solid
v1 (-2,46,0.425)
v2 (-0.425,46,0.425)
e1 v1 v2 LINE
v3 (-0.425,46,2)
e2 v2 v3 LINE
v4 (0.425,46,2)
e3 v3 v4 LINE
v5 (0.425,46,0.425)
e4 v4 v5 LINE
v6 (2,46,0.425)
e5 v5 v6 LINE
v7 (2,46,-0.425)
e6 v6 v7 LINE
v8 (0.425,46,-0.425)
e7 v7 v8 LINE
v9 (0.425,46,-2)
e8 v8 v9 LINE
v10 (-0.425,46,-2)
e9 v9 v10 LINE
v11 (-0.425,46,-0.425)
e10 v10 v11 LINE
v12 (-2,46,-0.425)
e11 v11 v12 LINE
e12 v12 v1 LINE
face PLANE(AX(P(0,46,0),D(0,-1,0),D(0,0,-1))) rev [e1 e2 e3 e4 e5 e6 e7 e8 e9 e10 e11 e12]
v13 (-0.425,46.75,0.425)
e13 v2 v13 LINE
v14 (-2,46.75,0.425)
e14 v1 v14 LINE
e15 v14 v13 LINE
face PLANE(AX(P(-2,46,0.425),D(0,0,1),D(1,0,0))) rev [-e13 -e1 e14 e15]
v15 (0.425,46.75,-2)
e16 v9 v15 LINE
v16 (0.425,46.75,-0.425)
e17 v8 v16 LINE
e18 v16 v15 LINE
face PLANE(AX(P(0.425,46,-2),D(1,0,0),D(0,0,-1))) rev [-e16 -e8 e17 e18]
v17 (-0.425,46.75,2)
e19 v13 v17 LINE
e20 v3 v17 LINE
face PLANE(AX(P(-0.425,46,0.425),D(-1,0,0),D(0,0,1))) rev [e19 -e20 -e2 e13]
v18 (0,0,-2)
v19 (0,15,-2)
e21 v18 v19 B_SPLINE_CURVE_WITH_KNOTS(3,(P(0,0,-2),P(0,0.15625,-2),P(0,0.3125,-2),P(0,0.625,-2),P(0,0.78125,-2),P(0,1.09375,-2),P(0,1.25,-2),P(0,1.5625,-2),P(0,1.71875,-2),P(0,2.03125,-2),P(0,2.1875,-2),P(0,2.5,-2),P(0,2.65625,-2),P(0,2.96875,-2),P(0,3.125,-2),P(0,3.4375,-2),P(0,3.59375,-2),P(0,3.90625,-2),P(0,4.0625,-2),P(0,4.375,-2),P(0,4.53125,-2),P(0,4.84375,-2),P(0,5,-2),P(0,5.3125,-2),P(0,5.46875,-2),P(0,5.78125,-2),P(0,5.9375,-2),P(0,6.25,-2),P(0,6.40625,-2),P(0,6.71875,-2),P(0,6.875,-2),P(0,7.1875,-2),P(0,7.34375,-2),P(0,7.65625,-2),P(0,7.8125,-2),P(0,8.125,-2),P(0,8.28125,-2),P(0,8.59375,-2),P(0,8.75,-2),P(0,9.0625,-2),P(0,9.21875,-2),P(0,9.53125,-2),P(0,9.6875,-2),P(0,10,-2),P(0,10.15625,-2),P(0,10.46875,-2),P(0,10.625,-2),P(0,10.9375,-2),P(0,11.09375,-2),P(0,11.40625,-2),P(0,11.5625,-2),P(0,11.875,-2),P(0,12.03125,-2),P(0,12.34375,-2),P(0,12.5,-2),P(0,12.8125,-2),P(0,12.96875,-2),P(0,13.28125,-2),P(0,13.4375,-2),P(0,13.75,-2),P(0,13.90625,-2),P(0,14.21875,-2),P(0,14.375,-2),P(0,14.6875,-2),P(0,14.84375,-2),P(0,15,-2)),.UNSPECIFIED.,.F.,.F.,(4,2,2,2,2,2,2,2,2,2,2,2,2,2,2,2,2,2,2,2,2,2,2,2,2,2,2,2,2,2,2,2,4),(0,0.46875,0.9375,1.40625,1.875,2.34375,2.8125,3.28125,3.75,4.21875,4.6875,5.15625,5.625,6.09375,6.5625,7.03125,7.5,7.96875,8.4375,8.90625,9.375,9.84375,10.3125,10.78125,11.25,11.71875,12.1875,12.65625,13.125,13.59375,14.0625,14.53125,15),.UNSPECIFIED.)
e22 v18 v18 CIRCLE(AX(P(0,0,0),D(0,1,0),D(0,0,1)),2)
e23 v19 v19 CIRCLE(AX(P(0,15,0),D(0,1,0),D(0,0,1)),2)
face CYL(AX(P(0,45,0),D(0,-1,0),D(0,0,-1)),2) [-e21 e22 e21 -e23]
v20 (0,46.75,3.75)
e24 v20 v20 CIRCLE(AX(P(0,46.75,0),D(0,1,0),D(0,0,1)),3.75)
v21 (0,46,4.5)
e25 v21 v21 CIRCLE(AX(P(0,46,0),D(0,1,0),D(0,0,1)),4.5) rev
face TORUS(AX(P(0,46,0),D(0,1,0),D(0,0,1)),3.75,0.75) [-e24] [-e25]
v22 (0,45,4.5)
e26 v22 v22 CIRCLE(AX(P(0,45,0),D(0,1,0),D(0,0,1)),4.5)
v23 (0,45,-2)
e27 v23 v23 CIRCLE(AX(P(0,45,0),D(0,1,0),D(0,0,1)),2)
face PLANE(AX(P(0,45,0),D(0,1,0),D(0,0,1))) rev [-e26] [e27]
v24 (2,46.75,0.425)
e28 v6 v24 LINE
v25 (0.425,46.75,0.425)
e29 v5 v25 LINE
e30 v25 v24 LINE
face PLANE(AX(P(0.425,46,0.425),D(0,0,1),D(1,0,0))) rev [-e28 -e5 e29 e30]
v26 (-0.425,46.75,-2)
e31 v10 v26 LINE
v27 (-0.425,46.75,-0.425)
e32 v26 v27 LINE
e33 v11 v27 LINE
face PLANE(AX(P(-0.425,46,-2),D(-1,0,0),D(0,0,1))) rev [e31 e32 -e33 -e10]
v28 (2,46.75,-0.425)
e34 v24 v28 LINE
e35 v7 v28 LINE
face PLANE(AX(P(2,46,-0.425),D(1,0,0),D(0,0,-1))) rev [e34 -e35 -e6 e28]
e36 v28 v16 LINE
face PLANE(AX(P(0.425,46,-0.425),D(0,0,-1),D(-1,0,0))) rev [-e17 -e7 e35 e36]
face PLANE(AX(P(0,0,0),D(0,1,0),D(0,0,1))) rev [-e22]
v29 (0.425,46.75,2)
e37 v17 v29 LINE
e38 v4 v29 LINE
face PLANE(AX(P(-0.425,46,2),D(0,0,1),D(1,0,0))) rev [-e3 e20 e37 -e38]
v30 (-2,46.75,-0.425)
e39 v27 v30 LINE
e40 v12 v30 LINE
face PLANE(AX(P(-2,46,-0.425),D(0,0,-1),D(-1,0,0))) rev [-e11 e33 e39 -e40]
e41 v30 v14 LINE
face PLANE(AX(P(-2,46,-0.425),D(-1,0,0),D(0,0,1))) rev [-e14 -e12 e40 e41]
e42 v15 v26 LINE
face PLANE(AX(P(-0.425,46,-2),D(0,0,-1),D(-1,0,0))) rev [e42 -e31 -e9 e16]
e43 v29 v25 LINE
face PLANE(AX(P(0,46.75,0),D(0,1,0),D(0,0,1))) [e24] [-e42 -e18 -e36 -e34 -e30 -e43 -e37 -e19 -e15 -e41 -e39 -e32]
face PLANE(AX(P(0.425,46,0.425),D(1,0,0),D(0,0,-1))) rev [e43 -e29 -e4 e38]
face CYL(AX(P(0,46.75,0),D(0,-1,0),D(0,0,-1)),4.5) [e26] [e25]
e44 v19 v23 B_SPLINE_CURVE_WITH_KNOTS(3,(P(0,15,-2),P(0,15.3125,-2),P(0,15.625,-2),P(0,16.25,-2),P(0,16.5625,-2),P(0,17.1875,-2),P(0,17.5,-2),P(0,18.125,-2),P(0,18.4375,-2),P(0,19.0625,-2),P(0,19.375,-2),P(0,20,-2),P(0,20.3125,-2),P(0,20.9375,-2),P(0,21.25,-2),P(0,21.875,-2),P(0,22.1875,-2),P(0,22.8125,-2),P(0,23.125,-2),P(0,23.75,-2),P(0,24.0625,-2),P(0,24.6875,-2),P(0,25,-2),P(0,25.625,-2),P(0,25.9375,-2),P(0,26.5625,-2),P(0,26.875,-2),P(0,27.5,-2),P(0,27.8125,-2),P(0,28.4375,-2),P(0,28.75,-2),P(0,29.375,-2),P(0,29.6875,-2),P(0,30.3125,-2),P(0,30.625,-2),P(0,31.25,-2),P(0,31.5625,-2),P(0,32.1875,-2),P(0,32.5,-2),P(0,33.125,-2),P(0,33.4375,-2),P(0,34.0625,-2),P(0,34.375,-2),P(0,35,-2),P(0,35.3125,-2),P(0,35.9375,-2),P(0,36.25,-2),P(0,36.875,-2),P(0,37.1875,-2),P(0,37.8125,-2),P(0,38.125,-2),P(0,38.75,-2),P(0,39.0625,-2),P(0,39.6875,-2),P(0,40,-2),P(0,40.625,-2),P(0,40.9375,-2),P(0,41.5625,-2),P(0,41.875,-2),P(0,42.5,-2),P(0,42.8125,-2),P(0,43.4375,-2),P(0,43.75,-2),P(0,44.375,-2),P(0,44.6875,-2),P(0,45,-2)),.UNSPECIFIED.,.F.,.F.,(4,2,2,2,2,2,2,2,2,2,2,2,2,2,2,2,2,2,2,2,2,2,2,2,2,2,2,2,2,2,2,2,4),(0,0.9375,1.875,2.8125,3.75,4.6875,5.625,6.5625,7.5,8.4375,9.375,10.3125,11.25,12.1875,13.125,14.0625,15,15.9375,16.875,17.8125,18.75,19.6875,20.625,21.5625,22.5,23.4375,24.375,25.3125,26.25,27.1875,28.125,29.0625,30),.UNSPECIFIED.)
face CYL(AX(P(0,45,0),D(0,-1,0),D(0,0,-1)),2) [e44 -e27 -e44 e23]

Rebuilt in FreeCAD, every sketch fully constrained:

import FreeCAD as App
import Part
import Sketcher
Q = App.Units.Quantity


def edges_at(feature, points):
    """Names of the edges that pass closest to the given points."""
    edges = feature.Shape.Edges
    near = lambda p: min(range(len(edges)), key=lambda i: edges[i].distToShape(Part.Vertex(*p))[0])
    return sorted({f"Edge{near(p) + 1}" for p in points})


def add_polygon(sketch, points):
    """Adds a closed chain of lines whose ends are joined by coincident constraints."""
    first, n = sketch.GeometryCount, len(points)
    for a, b in zip(points, points[1:] + points[:1]):
        sketch.addGeometry(Part.LineSegment(App.Vector(*a, 0), App.Vector(*b, 0)), False)
    for i in range(n):
        sketch.addConstraint(Sketcher.Constraint("Coincident", first + i, 2, first + (i + 1) % n, 1))

doc = App.newDocument("Part")
body = doc.addObject("PartDesign::Body", "Body")

# Sketch on XZ plane
sketch1 = body.newObject("Sketcher::SketchObject", "Sketch")
sketch1.AttachmentSupport = (doc.getObject("XZ_Plane"), [""])
sketch1.MapMode = "FlatFace"
sketch1.addGeometry(Part.Circle(App.Vector(0, 0, 0), App.Vector(0, 0, 1), 2), False)
sketch1.addConstraint([
    Sketcher.Constraint("Coincident", 0, 3, -1, 1),
    Sketcher.Constraint("Diameter", 0, Q("4 mm")),
])
pad1 = body.newObject("PartDesign::Pad", "Pad")
pad1.Profile = sketch1
pad1.Length = 45
pad1.Reversed = True

# Sketch on XZ plane
sketch2 = body.newObject("Sketcher::SketchObject", "Sketch001")
sketch2.AttachmentSupport = (doc.getObject("XZ_Plane"), [""])
sketch2.MapMode = "FlatFace"
sketch2.AttachmentOffset = App.Placement(App.Vector(0, 0, -45), App.Rotation())
sketch2.addGeometry(Part.Circle(App.Vector(0, 0, 0), App.Vector(0, 0, 1), 4.5), False)
sketch2.addConstraint([
    Sketcher.Constraint("Coincident", 0, 3, -1, 1),
    Sketcher.Constraint("Diameter", 0, Q("9 mm")),
])
pad2 = body.newObject("PartDesign::Pad", "Pad001")
pad2.Profile = sketch2
pad2.Length = 1.75
pad2.Reversed = True
doc.recompute()

fillet = body.newObject("PartDesign::Fillet", "Fillet")
fillet.Base = (pad2, edges_at(pad2, [(0, 46.75, -4.5)]))
fillet.Radius = 0.75

# Sketch on XZ plane
sketch3 = body.newObject("Sketcher::SketchObject", "Sketch002")
sketch3.AttachmentSupport = (doc.getObject("XZ_Plane"), [""])
sketch3.MapMode = "FlatFace"
sketch3.AttachmentOffset = App.Placement(App.Vector(0, 0, -46.75), App.Rotation())
add_polygon(sketch3, [(2, -0.4), (0.4, -0.4), (0.4, -2), (-0.4, -2), (-0.4, -0.4), (-2, -0.4), (-2, 0.4), (-0.4, 0.4), (-0.4, 2), (0.4, 2), (0.4, 0.4), (2, 0.4)])  # lines 0-11
sketch3.addConstraint([
    Sketcher.Constraint("Horizontal", 0),
    Sketcher.Constraint("Vertical", 1),
    Sketcher.Constraint("Horizontal", 2),
    Sketcher.Constraint("Vertical", 3),
    Sketcher.Constraint("Horizontal", 4),
    Sketcher.Constraint("Vertical", 5),
    Sketcher.Constraint("Horizontal", 6),
    Sketcher.Constraint("Vertical", 7),
    Sketcher.Constraint("Horizontal", 8),
    Sketcher.Constraint("Vertical", 9),
    Sketcher.Constraint("Horizontal", 10),
    Sketcher.Constraint("Vertical", 11),
    Sketcher.Constraint("Symmetric", 0, 2, 6, 2, -1, 1),
    Sketcher.Constraint("Symmetric", 2, 2, 8, 2, -1, 1),
    Sketcher.Constraint("Symmetric", 4, 2, 10, 2, -1, 1),
    Sketcher.Constraint("Symmetric", 0, 2, 3, 2, -2),
    Sketcher.Constraint("Equal", 10, 1),
    Sketcher.Constraint("Equal", 8, 5),
    Sketcher.Constraint("DistanceY", 1, 2, -1, 1, Q("2 mm")),
    Sketcher.Constraint("DistanceX", 2, 2, 2, 1, Q("0.85 mm")),
])
pocket1 = body.newObject("PartDesign::Pocket", "Pocket")
pocket1.Profile = sketch3
pocket1.Length = 0.75
pocket1.Reversed = True

doc.recompute()
